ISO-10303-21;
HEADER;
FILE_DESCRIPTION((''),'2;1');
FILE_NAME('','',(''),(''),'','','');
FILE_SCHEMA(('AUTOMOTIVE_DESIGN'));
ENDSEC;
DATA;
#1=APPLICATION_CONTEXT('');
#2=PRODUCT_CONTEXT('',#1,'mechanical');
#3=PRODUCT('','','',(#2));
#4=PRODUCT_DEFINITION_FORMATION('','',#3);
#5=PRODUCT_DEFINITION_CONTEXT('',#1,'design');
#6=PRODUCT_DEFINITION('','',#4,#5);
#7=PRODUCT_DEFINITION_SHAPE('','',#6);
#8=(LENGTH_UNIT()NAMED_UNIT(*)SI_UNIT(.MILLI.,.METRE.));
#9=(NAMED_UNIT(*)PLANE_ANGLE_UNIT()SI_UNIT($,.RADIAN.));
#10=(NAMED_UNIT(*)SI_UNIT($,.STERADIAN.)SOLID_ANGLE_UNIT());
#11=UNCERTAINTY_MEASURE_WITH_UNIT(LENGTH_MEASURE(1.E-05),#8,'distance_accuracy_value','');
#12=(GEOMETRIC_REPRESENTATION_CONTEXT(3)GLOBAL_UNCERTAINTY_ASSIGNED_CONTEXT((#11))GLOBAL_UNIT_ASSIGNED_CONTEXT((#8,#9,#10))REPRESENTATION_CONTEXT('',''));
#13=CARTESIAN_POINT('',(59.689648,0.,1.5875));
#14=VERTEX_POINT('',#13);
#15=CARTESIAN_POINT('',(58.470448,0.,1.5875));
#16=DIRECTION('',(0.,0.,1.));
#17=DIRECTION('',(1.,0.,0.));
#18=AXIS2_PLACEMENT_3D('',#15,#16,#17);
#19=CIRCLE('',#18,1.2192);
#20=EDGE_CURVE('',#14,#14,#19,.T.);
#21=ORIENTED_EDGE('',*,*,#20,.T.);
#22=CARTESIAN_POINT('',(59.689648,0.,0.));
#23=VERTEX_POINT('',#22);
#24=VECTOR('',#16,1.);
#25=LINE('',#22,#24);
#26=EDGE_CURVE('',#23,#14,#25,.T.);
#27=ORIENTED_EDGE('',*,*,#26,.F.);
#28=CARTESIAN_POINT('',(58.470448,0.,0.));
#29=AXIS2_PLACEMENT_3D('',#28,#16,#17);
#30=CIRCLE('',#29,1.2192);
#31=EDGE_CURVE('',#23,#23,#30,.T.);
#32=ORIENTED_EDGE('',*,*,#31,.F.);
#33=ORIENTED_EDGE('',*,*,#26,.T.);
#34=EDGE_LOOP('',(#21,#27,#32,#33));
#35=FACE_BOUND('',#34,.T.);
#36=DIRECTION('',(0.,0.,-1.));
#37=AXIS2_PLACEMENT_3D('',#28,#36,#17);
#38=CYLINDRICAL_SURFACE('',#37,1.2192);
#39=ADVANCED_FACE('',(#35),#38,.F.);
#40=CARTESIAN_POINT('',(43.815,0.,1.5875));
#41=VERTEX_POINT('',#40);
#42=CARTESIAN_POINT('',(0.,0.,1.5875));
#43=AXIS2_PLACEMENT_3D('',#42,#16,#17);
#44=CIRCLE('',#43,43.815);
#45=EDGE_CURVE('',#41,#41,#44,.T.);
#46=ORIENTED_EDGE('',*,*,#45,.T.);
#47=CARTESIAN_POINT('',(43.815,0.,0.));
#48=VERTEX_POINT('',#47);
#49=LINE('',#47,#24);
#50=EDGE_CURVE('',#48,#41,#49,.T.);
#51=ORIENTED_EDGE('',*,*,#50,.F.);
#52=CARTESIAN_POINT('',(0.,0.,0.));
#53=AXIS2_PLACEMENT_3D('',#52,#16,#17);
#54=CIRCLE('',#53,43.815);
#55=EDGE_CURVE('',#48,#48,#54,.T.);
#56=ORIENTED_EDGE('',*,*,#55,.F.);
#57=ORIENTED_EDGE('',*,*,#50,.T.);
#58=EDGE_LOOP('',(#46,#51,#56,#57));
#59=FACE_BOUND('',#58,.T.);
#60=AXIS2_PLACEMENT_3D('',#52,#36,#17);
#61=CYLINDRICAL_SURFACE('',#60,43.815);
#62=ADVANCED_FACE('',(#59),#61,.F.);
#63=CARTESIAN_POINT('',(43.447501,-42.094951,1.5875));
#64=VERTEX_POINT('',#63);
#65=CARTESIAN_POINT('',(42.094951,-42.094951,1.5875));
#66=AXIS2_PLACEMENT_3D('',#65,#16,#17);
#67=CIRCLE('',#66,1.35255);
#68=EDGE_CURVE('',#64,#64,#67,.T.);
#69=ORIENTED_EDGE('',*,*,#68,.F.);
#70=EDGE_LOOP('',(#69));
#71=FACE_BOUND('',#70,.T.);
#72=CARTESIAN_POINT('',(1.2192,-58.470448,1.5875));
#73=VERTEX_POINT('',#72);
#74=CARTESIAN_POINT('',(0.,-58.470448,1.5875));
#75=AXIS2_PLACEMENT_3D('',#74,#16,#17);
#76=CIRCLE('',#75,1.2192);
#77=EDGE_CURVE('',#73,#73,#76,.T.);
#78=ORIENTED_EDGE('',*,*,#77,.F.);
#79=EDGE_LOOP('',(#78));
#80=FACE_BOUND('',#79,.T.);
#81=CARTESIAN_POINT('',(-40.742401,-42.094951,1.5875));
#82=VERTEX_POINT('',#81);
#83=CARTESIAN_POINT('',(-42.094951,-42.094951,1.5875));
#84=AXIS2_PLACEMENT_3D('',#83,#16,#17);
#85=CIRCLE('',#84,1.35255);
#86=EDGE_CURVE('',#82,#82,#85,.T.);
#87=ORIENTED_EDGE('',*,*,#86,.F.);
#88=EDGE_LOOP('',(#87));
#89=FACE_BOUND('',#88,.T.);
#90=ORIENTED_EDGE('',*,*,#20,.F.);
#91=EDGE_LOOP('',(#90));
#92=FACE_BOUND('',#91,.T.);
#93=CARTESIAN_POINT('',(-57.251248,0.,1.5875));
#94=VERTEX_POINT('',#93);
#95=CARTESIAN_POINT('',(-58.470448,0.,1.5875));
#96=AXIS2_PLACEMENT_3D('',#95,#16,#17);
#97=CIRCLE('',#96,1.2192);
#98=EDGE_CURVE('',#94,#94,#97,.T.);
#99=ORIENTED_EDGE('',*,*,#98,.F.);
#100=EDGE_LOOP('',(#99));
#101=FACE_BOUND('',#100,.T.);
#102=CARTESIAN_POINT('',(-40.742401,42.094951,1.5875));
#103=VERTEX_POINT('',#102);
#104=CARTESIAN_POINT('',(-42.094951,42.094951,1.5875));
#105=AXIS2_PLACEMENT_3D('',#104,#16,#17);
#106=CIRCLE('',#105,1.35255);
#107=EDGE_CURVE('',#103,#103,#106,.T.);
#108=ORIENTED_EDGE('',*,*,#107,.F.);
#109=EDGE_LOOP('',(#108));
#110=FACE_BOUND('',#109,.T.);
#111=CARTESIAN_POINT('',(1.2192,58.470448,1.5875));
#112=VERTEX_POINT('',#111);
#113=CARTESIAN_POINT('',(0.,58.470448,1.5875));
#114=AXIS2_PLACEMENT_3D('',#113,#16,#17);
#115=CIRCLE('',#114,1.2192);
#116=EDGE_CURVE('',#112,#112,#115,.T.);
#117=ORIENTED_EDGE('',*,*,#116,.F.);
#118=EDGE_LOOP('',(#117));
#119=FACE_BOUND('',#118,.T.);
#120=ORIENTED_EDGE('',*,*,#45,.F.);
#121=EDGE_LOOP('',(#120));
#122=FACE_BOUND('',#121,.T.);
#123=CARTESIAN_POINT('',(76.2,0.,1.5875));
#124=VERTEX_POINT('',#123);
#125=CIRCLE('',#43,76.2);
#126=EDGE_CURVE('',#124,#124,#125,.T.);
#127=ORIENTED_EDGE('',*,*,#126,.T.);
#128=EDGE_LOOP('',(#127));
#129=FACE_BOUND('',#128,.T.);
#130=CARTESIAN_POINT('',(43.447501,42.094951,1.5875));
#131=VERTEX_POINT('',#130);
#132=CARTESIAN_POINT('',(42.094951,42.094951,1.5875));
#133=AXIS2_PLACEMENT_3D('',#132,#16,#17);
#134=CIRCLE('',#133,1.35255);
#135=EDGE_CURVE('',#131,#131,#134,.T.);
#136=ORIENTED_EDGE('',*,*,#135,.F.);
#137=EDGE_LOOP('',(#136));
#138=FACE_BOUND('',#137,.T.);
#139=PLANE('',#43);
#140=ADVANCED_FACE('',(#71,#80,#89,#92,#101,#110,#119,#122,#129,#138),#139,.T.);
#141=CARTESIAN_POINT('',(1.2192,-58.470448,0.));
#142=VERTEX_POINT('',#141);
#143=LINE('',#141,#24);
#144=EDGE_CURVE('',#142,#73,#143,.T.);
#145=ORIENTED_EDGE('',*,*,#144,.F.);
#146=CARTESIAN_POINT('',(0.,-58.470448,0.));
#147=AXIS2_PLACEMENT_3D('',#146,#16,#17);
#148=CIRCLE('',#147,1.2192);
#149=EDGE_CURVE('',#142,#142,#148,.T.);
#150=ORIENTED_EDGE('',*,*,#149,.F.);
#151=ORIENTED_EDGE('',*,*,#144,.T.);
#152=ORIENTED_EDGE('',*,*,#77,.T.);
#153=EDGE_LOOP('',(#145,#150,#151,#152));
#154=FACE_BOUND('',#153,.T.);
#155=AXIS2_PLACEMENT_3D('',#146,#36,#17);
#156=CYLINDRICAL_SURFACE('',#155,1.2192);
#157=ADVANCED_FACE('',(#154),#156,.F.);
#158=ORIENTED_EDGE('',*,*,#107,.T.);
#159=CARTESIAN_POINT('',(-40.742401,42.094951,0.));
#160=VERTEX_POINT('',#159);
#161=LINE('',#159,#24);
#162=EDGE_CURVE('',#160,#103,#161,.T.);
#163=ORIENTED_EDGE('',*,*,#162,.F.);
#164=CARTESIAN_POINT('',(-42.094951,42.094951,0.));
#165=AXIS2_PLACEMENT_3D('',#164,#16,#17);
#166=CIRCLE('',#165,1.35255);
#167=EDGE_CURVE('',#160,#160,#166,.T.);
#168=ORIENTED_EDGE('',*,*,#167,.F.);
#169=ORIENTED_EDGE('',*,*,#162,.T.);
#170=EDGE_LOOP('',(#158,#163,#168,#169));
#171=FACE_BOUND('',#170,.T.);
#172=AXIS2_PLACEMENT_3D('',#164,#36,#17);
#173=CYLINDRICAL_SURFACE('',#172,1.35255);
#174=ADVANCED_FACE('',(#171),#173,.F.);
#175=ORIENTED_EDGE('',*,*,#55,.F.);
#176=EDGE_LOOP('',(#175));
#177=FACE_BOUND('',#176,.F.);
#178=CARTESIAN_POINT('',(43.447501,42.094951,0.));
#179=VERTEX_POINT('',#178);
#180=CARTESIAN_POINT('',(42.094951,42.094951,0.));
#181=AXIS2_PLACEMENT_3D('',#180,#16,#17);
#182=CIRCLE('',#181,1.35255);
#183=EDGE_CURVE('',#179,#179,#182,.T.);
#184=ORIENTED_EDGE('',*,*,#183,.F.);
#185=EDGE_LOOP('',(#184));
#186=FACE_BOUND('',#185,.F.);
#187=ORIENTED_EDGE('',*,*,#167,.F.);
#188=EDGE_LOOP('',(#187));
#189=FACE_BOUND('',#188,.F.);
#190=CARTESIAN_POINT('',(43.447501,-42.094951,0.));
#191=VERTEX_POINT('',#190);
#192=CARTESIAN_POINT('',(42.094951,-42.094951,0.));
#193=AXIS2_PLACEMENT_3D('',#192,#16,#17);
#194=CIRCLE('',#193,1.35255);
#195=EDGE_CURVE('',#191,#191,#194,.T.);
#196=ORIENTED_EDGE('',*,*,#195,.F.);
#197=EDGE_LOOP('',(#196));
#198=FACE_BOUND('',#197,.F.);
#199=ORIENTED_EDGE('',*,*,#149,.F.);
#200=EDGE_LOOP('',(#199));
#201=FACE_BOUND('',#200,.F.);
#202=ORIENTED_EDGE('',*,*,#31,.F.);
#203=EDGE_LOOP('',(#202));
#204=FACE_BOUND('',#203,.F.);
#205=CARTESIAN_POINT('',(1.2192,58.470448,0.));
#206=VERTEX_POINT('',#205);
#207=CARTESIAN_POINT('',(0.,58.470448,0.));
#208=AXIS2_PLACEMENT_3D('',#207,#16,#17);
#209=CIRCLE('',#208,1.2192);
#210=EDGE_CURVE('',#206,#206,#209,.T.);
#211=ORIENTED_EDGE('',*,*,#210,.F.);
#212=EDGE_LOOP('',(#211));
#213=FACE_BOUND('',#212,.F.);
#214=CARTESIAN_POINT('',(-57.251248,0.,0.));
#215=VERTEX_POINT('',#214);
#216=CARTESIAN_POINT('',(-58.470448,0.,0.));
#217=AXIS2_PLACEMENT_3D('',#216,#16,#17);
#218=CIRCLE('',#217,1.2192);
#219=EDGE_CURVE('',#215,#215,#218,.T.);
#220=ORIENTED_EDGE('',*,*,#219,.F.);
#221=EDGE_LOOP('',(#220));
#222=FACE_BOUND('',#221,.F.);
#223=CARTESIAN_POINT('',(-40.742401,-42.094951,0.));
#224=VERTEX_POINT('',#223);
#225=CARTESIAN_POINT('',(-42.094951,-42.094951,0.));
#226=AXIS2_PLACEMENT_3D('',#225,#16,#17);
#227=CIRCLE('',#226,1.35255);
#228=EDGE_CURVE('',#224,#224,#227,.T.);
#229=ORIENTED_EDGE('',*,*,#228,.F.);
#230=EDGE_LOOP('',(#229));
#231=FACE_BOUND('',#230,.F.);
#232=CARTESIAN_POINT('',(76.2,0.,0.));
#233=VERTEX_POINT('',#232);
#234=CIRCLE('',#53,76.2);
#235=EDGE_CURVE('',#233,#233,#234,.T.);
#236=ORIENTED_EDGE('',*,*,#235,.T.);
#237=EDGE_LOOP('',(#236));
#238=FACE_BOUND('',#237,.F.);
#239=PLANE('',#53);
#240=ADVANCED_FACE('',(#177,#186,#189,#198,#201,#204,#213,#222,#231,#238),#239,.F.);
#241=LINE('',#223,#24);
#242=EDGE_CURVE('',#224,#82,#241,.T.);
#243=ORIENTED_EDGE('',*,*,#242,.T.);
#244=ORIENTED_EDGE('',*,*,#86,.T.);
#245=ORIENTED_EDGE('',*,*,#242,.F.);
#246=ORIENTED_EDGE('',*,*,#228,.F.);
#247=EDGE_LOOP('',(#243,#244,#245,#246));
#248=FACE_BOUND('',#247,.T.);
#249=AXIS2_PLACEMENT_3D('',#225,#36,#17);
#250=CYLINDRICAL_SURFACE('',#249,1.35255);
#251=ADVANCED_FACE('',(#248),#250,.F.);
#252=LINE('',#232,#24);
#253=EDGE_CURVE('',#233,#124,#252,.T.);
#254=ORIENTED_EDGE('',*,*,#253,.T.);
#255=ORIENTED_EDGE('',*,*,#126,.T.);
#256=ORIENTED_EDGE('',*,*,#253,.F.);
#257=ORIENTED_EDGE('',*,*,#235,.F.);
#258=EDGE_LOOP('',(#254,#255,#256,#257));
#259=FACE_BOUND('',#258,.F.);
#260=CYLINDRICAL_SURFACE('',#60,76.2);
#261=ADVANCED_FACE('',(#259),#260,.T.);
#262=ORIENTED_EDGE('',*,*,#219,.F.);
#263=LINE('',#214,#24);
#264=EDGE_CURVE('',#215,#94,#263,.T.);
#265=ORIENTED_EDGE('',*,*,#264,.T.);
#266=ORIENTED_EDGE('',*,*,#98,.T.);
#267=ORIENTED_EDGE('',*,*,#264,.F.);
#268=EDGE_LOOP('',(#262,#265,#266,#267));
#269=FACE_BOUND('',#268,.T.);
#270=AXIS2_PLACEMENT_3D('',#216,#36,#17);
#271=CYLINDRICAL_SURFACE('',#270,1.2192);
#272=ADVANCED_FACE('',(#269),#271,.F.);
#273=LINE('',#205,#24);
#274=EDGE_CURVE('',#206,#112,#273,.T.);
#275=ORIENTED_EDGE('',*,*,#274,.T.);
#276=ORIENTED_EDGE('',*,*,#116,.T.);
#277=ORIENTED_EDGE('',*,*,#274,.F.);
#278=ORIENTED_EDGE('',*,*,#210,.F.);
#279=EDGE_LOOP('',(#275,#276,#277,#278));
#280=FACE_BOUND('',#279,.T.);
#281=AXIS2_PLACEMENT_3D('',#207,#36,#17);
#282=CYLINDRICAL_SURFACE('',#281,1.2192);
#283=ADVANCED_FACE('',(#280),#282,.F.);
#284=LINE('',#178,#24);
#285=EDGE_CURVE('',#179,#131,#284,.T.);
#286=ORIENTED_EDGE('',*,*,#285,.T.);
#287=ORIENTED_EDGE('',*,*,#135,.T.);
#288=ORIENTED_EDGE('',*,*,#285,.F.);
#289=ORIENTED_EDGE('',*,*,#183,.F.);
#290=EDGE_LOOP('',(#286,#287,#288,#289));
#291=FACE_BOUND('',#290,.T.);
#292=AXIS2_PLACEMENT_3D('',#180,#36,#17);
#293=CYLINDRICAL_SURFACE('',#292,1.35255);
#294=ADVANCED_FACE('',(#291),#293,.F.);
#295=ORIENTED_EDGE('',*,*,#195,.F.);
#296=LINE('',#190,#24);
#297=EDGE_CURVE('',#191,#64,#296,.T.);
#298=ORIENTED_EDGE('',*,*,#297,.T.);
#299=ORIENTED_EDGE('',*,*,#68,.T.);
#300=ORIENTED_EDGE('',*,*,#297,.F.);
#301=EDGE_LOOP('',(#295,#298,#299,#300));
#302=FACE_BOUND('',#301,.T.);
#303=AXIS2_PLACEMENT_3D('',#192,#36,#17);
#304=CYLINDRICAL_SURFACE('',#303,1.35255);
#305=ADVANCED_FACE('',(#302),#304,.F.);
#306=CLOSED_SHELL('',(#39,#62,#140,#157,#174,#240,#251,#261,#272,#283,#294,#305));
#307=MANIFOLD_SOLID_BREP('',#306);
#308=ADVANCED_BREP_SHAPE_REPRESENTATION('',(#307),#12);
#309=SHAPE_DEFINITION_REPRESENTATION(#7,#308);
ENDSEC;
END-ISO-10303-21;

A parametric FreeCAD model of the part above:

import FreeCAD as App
import Part
import Sketcher
Q = App.Units.Quantity

doc = App.newDocument("Part")
body = doc.addObject("PartDesign::Body", "Body")

# Sketch on XY plane
sketch1 = body.newObject("Sketcher::SketchObject", "Sketch")
sketch1.AttachmentSupport = (doc.getObject("XY_Plane"), [""])
sketch1.MapMode = "FlatFace"
sketch1.addGeometry([
    Part.Circle(App.Vector(0, 0, 0), App.Vector(0, 0, 1), 76.2),  # 0
    Part.Circle(App.Vector(-42.1, -42.1, 0), App.Vector(0, 0, 1), 1.4),  # 1
    Part.Circle(App.Vector(0, -58.5, 0), App.Vector(0, 0, 1), 1.2),  # 2
    Part.Circle(App.Vector(42.1, -42.1, 0), App.Vector(0, 0, 1), 1.4),  # 3
    Part.Circle(App.Vector(-58.5, 0, 0), App.Vector(0, 0, 1), 1.2),  # 4
    Part.Circle(App.Vector(-42.1, 42.1, 0), App.Vector(0, 0, 1), 1.4),  # 5
    Part.Circle(App.Vector(0, 0, 0), App.Vector(0, 0, 1), 43.8),  # 6
    Part.Circle(App.Vector(58.5, 0, 0), App.Vector(0, 0, 1), 1.2),  # 7
    Part.Circle(App.Vector(0, 58.5, 0), App.Vector(0, 0, 1), 1.2),  # 8
    Part.Circle(App.Vector(42.1, 42.1, 0), App.Vector(0, 0, 1), 1.4),  # 9
], False)
sketch1.addConstraint([
    Sketcher.Constraint("Coincident", 0, 3, -1, 1),
    Sketcher.Constraint("Coincident", 6, 3, -1, 1),
    Sketcher.Constraint("Equal", 1, 3),
    Sketcher.Constraint("Equal", 2, 4),
    Sketcher.Constraint("Equal", 3, 5),
    Sketcher.Constraint("Equal", 4, 7),
    Sketcher.Constraint("Equal", 7, 8),
    Sketcher.Constraint("Equal", 5, 9),
    Sketcher.Constraint("Symmetric", 3, 3, 5, 3, -1, 1),
    Sketcher.Constraint("Symmetric", 4, 3, 7, 3, -1, 1),
    Sketcher.Constraint("Symmetric", 2, 3, 8, 3, -1, 1),
    Sketcher.Constraint("Symmetric", 1, 3, 9, 3, -1, 1),
    Sketcher.Constraint("Symmetric", 1, 3, 3, 3, -2),
    Sketcher.Constraint("PointOnObject", 2, 3, -2),
    Sketcher.Constraint("PointOnObject", 4, 3, -1),
    Sketcher.Constraint("Diameter", 0, Q("6 in")),
    Sketcher.Constraint("Diameter", 6, Q("3.45 in")),
    Sketcher.Constraint("Diameter", 2, Q("0.096 in")),
    Sketcher.Constraint("Diameter", 1, Q("0.1065 in")),
    Sketcher.Constraint("DistanceX", 4, 3, 3, 3, Q("100.565399 mm")),
    Sketcher.Constraint("DistanceY", 2, 3, 5, 3, Q("100.565399 mm")),
    Sketcher.Constraint("DistanceX", 1, 3, -1, 1, Q("42.094951 mm")),
    Sketcher.Constraint("DistanceY", 1, 3, -1, 1, Q("42.094951 mm")),
])
pad1 = body.newObject("PartDesign::Pad", "Pad")
pad1.Profile = sketch1
pad1.Length = Q("0.0625 in")

doc.recompute()
